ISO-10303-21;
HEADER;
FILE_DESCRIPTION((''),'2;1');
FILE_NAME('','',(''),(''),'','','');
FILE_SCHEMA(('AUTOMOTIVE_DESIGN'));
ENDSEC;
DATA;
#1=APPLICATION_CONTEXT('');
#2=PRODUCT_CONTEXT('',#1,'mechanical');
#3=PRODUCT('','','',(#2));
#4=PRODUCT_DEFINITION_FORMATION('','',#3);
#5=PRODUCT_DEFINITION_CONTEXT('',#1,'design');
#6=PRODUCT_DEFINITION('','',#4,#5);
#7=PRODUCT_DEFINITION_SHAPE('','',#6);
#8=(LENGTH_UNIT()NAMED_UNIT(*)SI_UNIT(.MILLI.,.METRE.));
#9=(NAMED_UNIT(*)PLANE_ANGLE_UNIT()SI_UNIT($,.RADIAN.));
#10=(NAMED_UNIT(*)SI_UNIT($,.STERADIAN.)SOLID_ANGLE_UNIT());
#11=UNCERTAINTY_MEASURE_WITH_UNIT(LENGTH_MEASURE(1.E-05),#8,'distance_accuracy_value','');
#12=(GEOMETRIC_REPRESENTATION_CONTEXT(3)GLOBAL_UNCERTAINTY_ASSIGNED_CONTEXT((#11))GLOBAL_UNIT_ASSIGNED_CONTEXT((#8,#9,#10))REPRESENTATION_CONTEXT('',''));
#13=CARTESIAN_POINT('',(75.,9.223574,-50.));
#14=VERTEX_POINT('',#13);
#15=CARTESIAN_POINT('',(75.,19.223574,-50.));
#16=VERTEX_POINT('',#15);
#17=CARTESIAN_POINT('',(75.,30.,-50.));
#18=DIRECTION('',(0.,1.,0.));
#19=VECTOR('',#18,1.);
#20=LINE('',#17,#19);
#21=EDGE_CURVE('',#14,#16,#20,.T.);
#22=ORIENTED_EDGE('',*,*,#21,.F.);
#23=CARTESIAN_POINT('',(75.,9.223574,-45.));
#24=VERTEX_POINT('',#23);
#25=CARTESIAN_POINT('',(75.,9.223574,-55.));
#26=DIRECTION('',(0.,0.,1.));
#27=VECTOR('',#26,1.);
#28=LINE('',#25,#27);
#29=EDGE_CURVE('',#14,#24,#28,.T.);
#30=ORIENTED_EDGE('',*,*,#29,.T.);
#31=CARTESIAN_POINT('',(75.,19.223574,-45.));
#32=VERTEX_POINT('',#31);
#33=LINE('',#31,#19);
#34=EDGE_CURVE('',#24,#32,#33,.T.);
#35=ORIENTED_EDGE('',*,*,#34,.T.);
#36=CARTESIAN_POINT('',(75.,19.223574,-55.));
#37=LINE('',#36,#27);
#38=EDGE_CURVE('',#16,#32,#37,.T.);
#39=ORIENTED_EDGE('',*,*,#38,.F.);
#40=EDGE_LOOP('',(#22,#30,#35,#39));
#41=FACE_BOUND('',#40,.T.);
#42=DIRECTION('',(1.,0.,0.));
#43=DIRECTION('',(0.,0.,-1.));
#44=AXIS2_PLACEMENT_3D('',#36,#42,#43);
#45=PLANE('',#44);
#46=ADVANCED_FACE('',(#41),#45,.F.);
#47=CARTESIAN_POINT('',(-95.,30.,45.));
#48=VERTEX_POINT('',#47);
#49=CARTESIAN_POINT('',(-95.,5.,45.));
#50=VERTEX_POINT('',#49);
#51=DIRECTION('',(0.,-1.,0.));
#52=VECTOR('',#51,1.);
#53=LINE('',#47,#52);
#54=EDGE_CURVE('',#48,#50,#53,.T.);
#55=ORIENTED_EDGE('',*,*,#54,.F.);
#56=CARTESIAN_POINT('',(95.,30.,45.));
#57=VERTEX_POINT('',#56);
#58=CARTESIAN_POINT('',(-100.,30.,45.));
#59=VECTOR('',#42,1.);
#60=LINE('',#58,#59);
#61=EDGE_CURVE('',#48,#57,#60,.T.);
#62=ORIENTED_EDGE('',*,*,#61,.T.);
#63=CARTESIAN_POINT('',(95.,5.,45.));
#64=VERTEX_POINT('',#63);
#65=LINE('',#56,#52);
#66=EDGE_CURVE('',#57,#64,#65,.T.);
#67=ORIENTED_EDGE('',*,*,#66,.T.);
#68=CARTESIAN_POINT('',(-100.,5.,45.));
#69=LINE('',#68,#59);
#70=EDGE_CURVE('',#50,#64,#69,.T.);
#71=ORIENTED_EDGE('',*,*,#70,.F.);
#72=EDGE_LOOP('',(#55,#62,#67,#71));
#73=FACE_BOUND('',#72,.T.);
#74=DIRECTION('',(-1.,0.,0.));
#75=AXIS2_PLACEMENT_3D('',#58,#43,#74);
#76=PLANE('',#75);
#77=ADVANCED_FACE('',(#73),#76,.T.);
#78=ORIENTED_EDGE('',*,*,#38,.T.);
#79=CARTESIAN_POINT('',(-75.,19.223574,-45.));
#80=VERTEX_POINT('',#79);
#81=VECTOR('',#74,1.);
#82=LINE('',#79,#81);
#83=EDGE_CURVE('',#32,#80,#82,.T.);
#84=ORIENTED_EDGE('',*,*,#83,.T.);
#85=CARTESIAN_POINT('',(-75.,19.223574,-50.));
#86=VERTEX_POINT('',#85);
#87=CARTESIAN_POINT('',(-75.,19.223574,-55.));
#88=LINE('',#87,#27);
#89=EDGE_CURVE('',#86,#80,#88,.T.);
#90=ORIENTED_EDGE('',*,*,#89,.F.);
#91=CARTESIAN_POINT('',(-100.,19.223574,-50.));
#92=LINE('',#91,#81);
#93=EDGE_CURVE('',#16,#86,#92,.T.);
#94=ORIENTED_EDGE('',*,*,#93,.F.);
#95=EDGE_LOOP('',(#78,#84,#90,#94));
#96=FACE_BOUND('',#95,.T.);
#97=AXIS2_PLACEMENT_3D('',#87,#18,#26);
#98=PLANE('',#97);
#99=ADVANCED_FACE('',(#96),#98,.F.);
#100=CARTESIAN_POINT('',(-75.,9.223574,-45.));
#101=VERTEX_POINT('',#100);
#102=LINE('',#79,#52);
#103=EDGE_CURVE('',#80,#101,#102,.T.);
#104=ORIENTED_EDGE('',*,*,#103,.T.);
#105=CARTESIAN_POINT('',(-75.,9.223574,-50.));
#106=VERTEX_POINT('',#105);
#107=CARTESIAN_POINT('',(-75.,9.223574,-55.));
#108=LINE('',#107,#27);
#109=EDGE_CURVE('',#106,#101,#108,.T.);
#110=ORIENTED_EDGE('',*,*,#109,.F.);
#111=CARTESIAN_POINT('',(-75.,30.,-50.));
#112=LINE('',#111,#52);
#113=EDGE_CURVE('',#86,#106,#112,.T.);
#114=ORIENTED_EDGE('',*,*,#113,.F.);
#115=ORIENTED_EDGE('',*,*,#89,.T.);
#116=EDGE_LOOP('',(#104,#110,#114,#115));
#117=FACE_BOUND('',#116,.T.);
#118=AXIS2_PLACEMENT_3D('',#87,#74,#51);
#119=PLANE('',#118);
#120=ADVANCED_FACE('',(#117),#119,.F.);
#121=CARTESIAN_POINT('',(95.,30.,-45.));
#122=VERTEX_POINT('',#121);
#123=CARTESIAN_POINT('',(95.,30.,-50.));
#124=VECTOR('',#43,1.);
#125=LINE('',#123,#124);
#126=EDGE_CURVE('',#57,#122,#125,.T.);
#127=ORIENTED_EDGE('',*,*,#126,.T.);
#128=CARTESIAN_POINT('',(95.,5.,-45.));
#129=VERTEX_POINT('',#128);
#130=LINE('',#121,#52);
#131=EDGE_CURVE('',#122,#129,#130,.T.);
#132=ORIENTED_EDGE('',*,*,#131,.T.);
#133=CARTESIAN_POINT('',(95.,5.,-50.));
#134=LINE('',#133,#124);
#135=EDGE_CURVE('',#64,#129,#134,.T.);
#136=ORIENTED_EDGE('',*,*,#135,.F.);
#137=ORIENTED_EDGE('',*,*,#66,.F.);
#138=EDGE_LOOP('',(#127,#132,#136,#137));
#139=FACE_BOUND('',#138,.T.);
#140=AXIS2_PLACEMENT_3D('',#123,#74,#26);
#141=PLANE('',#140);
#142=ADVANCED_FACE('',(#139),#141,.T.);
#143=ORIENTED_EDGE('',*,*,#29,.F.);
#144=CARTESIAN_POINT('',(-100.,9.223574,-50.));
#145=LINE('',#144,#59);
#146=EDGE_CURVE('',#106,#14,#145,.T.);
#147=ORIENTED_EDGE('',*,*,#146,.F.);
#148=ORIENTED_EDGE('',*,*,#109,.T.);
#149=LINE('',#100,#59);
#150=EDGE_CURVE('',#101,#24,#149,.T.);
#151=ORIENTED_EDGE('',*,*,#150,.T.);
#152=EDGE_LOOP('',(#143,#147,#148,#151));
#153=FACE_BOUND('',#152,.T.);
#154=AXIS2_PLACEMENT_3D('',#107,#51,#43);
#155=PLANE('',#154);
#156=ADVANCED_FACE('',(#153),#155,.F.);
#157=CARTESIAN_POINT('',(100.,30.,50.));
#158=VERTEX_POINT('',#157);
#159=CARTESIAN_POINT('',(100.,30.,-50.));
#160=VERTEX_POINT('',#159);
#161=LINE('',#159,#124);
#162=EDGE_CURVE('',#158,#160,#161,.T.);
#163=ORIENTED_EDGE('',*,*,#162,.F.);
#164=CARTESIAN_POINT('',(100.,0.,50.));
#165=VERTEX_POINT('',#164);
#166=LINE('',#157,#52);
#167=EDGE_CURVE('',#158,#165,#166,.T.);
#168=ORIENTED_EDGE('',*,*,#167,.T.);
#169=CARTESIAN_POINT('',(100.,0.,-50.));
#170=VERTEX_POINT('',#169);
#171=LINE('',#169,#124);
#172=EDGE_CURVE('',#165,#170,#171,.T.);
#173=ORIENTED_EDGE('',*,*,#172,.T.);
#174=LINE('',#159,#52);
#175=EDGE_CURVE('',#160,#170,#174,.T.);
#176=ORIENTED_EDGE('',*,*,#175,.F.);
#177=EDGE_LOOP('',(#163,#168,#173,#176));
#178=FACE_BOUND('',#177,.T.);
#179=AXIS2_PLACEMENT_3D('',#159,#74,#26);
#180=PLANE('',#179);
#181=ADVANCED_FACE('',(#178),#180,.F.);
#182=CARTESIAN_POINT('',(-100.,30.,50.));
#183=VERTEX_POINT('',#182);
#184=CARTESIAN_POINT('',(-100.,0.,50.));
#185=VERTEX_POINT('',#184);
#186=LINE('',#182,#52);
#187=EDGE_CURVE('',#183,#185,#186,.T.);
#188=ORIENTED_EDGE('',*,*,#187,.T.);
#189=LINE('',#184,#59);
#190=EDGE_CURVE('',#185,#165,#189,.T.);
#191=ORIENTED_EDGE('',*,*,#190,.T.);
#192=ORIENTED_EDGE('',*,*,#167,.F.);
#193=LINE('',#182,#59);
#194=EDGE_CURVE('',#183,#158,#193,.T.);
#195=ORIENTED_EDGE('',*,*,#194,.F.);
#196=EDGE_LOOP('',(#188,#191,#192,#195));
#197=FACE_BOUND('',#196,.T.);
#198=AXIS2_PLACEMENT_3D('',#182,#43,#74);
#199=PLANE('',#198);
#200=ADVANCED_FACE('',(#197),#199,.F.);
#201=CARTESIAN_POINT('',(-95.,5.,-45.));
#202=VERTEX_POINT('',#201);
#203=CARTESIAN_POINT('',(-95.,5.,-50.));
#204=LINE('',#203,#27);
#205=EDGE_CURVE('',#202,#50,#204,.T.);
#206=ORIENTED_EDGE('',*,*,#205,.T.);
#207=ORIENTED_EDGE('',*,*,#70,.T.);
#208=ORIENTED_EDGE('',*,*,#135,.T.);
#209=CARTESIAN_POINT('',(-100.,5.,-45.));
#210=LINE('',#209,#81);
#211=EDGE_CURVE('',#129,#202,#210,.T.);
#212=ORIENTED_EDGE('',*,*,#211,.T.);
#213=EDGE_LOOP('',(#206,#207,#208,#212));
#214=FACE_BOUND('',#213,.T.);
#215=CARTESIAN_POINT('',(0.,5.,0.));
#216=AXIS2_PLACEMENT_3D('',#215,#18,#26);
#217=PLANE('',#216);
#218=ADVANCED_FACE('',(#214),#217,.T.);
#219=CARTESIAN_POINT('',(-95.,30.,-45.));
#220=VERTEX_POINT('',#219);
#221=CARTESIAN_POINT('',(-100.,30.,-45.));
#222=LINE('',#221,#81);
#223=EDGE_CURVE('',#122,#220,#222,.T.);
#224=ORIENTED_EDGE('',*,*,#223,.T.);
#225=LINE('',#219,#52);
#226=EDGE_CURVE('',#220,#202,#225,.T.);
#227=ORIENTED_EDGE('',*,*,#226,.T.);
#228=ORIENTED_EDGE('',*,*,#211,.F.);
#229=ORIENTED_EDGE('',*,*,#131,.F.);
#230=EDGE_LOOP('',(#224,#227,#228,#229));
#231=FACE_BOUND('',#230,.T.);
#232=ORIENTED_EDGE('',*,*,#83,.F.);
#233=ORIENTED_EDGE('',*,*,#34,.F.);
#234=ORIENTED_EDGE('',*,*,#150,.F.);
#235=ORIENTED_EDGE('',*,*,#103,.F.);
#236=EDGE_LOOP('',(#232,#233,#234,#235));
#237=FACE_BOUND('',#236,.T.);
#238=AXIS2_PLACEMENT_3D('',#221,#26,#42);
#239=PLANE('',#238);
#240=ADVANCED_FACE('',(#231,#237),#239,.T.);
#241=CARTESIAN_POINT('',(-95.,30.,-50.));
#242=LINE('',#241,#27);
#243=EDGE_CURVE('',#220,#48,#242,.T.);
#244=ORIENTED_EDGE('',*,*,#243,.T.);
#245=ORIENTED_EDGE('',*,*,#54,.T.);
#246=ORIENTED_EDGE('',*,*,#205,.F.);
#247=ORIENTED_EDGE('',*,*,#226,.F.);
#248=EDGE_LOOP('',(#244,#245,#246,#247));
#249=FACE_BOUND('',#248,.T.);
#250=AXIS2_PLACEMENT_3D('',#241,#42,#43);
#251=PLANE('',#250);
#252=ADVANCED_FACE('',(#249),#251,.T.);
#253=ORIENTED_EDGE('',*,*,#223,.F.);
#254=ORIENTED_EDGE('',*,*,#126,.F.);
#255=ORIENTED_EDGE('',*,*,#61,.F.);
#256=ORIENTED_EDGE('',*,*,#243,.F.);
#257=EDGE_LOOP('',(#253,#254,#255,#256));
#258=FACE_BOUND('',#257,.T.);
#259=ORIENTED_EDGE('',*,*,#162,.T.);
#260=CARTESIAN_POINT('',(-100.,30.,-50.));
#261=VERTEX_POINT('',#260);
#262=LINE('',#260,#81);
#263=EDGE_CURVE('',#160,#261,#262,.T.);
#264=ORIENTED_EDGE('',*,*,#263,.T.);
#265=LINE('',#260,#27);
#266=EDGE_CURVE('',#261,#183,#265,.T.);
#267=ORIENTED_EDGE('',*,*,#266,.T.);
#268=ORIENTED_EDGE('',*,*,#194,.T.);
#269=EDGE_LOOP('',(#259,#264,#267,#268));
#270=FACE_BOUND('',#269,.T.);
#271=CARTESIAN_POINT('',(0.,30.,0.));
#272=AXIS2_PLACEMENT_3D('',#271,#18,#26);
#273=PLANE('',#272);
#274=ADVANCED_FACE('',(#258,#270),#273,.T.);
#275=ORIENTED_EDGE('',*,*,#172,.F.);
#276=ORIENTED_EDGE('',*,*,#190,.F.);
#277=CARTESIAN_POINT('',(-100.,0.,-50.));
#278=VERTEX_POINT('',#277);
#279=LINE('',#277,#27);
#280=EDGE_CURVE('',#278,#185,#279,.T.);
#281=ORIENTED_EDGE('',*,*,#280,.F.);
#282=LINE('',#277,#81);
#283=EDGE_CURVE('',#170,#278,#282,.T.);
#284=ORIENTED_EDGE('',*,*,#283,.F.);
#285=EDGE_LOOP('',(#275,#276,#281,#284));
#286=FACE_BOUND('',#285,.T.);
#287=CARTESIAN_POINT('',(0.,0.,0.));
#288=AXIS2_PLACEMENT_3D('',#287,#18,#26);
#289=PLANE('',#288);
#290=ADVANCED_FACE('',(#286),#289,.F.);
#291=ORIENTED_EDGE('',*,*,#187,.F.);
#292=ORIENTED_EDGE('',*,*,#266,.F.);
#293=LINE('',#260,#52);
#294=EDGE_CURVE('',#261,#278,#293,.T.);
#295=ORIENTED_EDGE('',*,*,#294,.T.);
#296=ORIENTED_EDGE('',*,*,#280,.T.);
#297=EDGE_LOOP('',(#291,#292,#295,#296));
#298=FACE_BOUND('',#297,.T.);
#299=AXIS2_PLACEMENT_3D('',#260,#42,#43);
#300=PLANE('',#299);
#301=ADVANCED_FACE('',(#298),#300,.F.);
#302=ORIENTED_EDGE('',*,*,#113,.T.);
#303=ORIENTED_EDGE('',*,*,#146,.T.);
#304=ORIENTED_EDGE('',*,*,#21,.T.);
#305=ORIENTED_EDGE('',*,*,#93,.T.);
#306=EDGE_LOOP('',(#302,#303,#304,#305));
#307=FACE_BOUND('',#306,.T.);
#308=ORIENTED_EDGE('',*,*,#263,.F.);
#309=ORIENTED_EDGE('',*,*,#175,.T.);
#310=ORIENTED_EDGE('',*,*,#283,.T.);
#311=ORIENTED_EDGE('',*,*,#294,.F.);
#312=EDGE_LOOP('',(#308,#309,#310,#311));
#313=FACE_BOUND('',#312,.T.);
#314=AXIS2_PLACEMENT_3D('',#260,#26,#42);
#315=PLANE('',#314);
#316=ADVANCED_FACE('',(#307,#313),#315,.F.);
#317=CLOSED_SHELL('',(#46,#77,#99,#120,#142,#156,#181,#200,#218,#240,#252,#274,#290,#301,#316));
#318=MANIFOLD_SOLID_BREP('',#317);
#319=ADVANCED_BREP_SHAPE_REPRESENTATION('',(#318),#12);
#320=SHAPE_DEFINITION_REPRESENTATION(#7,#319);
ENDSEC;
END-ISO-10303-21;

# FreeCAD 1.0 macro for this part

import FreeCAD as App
import Part
import Sketcher


def faces_at(feature, points):
    """Names of the faces that lie closest to the given points."""
    faces = feature.Shape.Faces
    near = lambda p: min(range(len(faces)), key=lambda i: faces[i].distToShape(Part.Vertex(*p))[0])
    return sorted({f"Face{near(p) + 1}" for p in points})

doc = App.newDocument("Part")
body = doc.addObject("PartDesign::Body", "Body")

# Sketch on XZ plane
sketch1 = body.newObject("Sketcher::SketchObject", "Sketch")
sketch1.AttachmentSupport = (doc.getObject("XZ_Plane"), [""])
sketch1.MapMode = "FlatFace"
sketch1.addGeometry(Part.LineSegment(App.Vector(-100, -50, 0), App.Vector(-100, 50, 0)), False)
sketch1.addGeometry(Part.LineSegment(App.Vector(-100, 50, 0), App.Vector(100, 50, 0)), False)
sketch1.addGeometry(Part.LineSegment(App.Vector(100, 50, 0), App.Vector(100, -50, 0)), False)
sketch1.addGeometry(Part.LineSegment(App.Vector(100, -50, 0), App.Vector(-100, -50, 0)), False)
sketch1.addConstraint(Sketcher.Constraint("Coincident", 0, 2, 1, 1))
sketch1.addConstraint(Sketcher.Constraint("Coincident", 1, 2, 2, 1))
sketch1.addConstraint(Sketcher.Constraint("Coincident", 2, 2, 3, 1))
sketch1.addConstraint(Sketcher.Constraint("Coincident", 3, 2, 0, 1))
sketch1.addConstraint(Sketcher.Constraint("Vertical", 0))
sketch1.addConstraint(Sketcher.Constraint("Horizontal", 1))
sketch1.addConstraint(Sketcher.Constraint("Vertical", 2))
sketch1.addConstraint(Sketcher.Constraint("Horizontal", 3))
sketch1.addConstraint(Sketcher.Constraint("Symmetric", 0, 2, 2, 2, -1, 1))
sketch1.addConstraint(Sketcher.Constraint("DistanceX", 1, 1, 1, 2, 200.0))
sketch1.addConstraint(Sketcher.Constraint("DistanceY", 0, 1, 0, 2, 100.0))
pad1 = body.newObject("PartDesign::Pad", "Pad")
pad1.Profile = sketch1
pad1.Length = 30
pad1.Reversed = True
doc.recompute()

thickness = body.newObject("PartDesign::Thickness", "Thickness")
thickness.Base = (pad1, faces_at(pad1, [(0, 30, 0)]))
thickness.Value = 5
thickness.Reversed = True
thickness.Join = "Intersection"

# Sketch on XY plane
sketch2 = body.newObject("Sketcher::SketchObject", "Sketch001")
sketch2.AttachmentSupport = (doc.getObject("XY_Plane"), [""])
sketch2.MapMode = "FlatFace"
sketch2.AttachmentOffset = App.Placement(App.Vector(0, 0, -45), App.Rotation())
sketch2.addGeometry(Part.LineSegment(App.Vector(-75, 19, 0), App.Vector(-75, 9, 0)), False)
sketch2.addGeometry(Part.LineSegment(App.Vector(-75, 9, 0), App.Vector(75, 9, 0)), False)
sketch2.addGeometry(Part.LineSegment(App.Vector(75, 9, 0), App.Vector(75, 19, 0)), False)
sketch2.addGeometry(Part.LineSegment(App.Vector(75, 19, 0), App.Vector(-75, 19, 0)), False)
sketch2.addConstraint(Sketcher.Constraint("Coincident", 0, 2, 1, 1))
sketch2.addConstraint(Sketcher.Constraint("Coincident", 1, 2, 2, 1))
sketch2.addConstraint(Sketcher.Constraint("Coincident", 2, 2, 3, 1))
sketch2.addConstraint(Sketcher.Constraint("Coincident", 3, 2, 0, 1))
sketch2.addConstraint(Sketcher.Constraint("Vertical", 0))
sketch2.addConstraint(Sketcher.Constraint("Horizontal", 1))
sketch2.addConstraint(Sketcher.Constraint("Vertical", 2))
sketch2.addConstraint(Sketcher.Constraint("Horizontal", 3))
sketch2.addConstraint(Sketcher.Constraint("DistanceX", 1, 1, 1, 2, 150.0))
sketch2.addConstraint(Sketcher.Constraint("DistanceY", 0, 2, 0, 1, 10.0))
sketch2.addConstraint(Sketcher.Constraint("DistanceX", 0, 2, -1, 1, 75.0))
sketch2.addConstraint(Sketcher.Constraint("DistanceY", -1, 1, 0, 2, 9.223574))
pocket1 = body.newObject("PartDesign::Pocket", "Pocket")
pocket1.Profile = sketch2
pocket1.Length = 10

doc.recompute()
